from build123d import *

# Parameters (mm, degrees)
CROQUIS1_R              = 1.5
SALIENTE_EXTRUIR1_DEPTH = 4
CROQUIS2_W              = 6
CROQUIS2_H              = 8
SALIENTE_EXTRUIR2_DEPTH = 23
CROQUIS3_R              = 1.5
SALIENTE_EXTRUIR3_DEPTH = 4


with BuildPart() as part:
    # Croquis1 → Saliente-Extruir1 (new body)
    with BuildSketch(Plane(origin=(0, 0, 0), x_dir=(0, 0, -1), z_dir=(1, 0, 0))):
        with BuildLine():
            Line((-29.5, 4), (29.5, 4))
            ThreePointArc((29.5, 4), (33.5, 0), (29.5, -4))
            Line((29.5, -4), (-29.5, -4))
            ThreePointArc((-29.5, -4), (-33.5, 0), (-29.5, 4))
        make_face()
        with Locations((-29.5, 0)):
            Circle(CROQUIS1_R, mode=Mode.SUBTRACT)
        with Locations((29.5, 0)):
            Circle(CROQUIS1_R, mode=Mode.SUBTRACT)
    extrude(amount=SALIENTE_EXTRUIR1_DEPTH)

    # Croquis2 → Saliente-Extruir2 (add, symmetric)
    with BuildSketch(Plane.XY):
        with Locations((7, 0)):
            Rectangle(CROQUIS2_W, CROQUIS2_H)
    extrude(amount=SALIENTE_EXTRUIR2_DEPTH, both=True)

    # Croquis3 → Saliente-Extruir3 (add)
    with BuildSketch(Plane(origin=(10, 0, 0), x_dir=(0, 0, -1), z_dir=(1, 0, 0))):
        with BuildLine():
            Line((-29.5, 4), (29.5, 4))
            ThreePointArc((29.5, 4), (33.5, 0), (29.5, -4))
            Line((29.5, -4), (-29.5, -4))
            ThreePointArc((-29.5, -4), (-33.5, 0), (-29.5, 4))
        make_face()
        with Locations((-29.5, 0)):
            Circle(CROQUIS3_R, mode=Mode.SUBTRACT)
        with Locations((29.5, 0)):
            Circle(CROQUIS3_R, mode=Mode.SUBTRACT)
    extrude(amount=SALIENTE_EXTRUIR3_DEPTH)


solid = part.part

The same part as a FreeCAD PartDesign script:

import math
import FreeCAD as App
import Part
import Sketcher
from FreeCAD import Vector
Q = App.Units.Quantity

doc = App.newDocument("Part")
body = doc.addObject("PartDesign::Body", "Body")

# Sketch on YZ plane
sketch1 = doc.addObject("Sketcher::SketchObject", "Sketch")
body.addObject(sketch1)
sketch1.AttachmentSupport = (doc.YZ_Plane, [""])
sketch1.MapMode = "FlatFace"
sketch1.addGeometry([
    Part.LineSegment(Vector(4, -29.5, 0), Vector(4, 29.5, 0)),  # 0
    Part.ArcOfCircle(Part.Circle(Vector(0, 29.5, 0), Vector(0, 0, 1), 4), math.radians(0), math.radians(180)),  # 1
    Part.LineSegment(Vector(-4, 29.5, 0), Vector(-4, -29.5, 0)),  # 2
    Part.ArcOfCircle(Part.Circle(Vector(0, -29.5, 0), Vector(0, 0, 1), 4), math.radians(180), math.radians(360)),  # 3
    Part.Circle(Vector(0, -29.5, 0), Vector(0, 0, 1), 1.5),  # 4
    Part.Circle(Vector(0, 29.5, 0), Vector(0, 0, 1), 1.5),  # 5
], False)
sketch1.addConstraint([
    Sketcher.Constraint("Tangent", 0, 2, 1, 1),
    Sketcher.Constraint("Tangent", 1, 2, 2, 1),
    Sketcher.Constraint("Tangent", 2, 2, 3, 1),
    Sketcher.Constraint("Tangent", 3, 2, 0, 1),
    Sketcher.Constraint("Vertical", 0),
    Sketcher.Constraint("Vertical", 2),
    Sketcher.Constraint("Coincident", 4, 3, 3, 3),
    Sketcher.Constraint("Coincident", 5, 3, 1, 3),
    Sketcher.Constraint("Equal", 4, 5),
    Sketcher.Constraint("Symmetric", 1, 3, 3, 3, -1, 1),
    Sketcher.Constraint("Diameter", 4, Q("3 mm")),
    Sketcher.Constraint("Radius", 1, Q("4 mm")),
    Sketcher.Constraint("DistanceY", 0, 1, 0, 2, Q("59 mm")),
])
pad1 = doc.addObject("PartDesign::Pad", "Pad")
body.addObject(pad1)
pad1.Profile = sketch1
pad1.Length = 4

# Sketch on XY plane
sketch2 = doc.addObject("Sketcher::SketchObject", "Sketch001")
body.addObject(sketch2)
sketch2.AttachmentSupport = (doc.XY_Plane, [""])
sketch2.MapMode = "FlatFace"
sketch2.addGeometry([
    Part.LineSegment(Vector(4, 4, 0), Vector(4, -4, 0)),
    Part.LineSegment(Vector(4, -4, 0), Vector(10, -4, 0)),
    Part.LineSegment(Vector(10, -4, 0), Vector(10, 4, 0)),
    Part.LineSegment(Vector(10, 4, 0), Vector(4, 4, 0)),
], False)
sketch2.addConstraint([
    Sketcher.Constraint("Coincident", 0, 2, 1, 1),
    Sketcher.Constraint("Coincident", 1, 2, 2, 1),
    Sketcher.Constraint("Coincident", 2, 2, 3, 1),
    Sketcher.Constraint("Coincident", 3, 2, 0, 1),
    Sketcher.Constraint("Vertical", 0),
    Sketcher.Constraint("Horizontal", 1),
    Sketcher.Constraint("Vertical", 2),
    Sketcher.Constraint("Horizontal", 3),
    Sketcher.Constraint("DistanceX", 1, 1, 1, 2, Q("6 mm")),
    Sketcher.Constraint("DistanceY", 0, 2, 0, 1, Q("8 mm")),
    Sketcher.Constraint("DistanceX", -1, 1, 0, 2, Q("4 mm")),
    Sketcher.Constraint("DistanceY", 0, 2, -1, 1, Q("4 mm")),
])
pad2 = doc.addObject("PartDesign::Pad", "Pad001")
body.addObject(pad2)
pad2.Profile = sketch2
pad2.Length = 46
pad2.Midplane = True

# Sketch on YZ plane
sketch3 = doc.addObject("Sketcher::SketchObject", "Sketch002")
body.addObject(sketch3)
sketch3.AttachmentSupport = (doc.YZ_Plane, [""])
sketch3.MapMode = "FlatFace"
sketch3.AttachmentOffset = App.Placement(Vector(0, 0, 10), App.Rotation())
sketch3.addGeometry([
    Part.LineSegment(Vector(4, -29.5, 0), Vector(4, 29.5, 0)),  # 0
    Part.ArcOfCircle(Part.Circle(Vector(0, 29.5, 0), Vector(0, 0, 1), 4), math.radians(0), math.radians(180)),  # 1
    Part.LineSegment(Vector(-4, 29.5, 0), Vector(-4, -29.5, 0)),  # 2
    Part.ArcOfCircle(Part.Circle(Vector(0, -29.5, 0), Vector(0, 0, 1), 4), math.radians(180), math.radians(360)),  # 3
    Part.Circle(Vector(0, -29.5, 0), Vector(0, 0, 1), 1.5),  # 4
    Part.Circle(Vector(0, 29.5, 0), Vector(0, 0, 1), 1.5),  # 5
], False)
sketch3.addConstraint([
    Sketcher.Constraint("Tangent", 0, 2, 1, 1),
    Sketcher.Constraint("Tangent", 1, 2, 2, 1),
    Sketcher.Constraint("Tangent", 2, 2, 3, 1),
    Sketcher.Constraint("Tangent", 3, 2, 0, 1),
    Sketcher.Constraint("Vertical", 0),
    Sketcher.Constraint("Vertical", 2),
    Sketcher.Constraint("Coincident", 4, 3, 3, 3),
    Sketcher.Constraint("Coincident", 5, 3, 1, 3),
    Sketcher.Constraint("Equal", 4, 5),
    Sketcher.Constraint("Symmetric", 1, 3, 3, 3, -1, 1),
    Sketcher.Constraint("Diameter", 4, Q("3 mm")),
    Sketcher.Constraint("Radius", 1, Q("4 mm")),
    Sketcher.Constraint("DistanceY", 0, 1, 0, 2, Q("59 mm")),
])
pad3 = doc.addObject("PartDesign::Pad", "Pad002")
body.addObject(pad3)
pad3.Profile = sketch3
pad3.Length = 4

doc.recompute()
